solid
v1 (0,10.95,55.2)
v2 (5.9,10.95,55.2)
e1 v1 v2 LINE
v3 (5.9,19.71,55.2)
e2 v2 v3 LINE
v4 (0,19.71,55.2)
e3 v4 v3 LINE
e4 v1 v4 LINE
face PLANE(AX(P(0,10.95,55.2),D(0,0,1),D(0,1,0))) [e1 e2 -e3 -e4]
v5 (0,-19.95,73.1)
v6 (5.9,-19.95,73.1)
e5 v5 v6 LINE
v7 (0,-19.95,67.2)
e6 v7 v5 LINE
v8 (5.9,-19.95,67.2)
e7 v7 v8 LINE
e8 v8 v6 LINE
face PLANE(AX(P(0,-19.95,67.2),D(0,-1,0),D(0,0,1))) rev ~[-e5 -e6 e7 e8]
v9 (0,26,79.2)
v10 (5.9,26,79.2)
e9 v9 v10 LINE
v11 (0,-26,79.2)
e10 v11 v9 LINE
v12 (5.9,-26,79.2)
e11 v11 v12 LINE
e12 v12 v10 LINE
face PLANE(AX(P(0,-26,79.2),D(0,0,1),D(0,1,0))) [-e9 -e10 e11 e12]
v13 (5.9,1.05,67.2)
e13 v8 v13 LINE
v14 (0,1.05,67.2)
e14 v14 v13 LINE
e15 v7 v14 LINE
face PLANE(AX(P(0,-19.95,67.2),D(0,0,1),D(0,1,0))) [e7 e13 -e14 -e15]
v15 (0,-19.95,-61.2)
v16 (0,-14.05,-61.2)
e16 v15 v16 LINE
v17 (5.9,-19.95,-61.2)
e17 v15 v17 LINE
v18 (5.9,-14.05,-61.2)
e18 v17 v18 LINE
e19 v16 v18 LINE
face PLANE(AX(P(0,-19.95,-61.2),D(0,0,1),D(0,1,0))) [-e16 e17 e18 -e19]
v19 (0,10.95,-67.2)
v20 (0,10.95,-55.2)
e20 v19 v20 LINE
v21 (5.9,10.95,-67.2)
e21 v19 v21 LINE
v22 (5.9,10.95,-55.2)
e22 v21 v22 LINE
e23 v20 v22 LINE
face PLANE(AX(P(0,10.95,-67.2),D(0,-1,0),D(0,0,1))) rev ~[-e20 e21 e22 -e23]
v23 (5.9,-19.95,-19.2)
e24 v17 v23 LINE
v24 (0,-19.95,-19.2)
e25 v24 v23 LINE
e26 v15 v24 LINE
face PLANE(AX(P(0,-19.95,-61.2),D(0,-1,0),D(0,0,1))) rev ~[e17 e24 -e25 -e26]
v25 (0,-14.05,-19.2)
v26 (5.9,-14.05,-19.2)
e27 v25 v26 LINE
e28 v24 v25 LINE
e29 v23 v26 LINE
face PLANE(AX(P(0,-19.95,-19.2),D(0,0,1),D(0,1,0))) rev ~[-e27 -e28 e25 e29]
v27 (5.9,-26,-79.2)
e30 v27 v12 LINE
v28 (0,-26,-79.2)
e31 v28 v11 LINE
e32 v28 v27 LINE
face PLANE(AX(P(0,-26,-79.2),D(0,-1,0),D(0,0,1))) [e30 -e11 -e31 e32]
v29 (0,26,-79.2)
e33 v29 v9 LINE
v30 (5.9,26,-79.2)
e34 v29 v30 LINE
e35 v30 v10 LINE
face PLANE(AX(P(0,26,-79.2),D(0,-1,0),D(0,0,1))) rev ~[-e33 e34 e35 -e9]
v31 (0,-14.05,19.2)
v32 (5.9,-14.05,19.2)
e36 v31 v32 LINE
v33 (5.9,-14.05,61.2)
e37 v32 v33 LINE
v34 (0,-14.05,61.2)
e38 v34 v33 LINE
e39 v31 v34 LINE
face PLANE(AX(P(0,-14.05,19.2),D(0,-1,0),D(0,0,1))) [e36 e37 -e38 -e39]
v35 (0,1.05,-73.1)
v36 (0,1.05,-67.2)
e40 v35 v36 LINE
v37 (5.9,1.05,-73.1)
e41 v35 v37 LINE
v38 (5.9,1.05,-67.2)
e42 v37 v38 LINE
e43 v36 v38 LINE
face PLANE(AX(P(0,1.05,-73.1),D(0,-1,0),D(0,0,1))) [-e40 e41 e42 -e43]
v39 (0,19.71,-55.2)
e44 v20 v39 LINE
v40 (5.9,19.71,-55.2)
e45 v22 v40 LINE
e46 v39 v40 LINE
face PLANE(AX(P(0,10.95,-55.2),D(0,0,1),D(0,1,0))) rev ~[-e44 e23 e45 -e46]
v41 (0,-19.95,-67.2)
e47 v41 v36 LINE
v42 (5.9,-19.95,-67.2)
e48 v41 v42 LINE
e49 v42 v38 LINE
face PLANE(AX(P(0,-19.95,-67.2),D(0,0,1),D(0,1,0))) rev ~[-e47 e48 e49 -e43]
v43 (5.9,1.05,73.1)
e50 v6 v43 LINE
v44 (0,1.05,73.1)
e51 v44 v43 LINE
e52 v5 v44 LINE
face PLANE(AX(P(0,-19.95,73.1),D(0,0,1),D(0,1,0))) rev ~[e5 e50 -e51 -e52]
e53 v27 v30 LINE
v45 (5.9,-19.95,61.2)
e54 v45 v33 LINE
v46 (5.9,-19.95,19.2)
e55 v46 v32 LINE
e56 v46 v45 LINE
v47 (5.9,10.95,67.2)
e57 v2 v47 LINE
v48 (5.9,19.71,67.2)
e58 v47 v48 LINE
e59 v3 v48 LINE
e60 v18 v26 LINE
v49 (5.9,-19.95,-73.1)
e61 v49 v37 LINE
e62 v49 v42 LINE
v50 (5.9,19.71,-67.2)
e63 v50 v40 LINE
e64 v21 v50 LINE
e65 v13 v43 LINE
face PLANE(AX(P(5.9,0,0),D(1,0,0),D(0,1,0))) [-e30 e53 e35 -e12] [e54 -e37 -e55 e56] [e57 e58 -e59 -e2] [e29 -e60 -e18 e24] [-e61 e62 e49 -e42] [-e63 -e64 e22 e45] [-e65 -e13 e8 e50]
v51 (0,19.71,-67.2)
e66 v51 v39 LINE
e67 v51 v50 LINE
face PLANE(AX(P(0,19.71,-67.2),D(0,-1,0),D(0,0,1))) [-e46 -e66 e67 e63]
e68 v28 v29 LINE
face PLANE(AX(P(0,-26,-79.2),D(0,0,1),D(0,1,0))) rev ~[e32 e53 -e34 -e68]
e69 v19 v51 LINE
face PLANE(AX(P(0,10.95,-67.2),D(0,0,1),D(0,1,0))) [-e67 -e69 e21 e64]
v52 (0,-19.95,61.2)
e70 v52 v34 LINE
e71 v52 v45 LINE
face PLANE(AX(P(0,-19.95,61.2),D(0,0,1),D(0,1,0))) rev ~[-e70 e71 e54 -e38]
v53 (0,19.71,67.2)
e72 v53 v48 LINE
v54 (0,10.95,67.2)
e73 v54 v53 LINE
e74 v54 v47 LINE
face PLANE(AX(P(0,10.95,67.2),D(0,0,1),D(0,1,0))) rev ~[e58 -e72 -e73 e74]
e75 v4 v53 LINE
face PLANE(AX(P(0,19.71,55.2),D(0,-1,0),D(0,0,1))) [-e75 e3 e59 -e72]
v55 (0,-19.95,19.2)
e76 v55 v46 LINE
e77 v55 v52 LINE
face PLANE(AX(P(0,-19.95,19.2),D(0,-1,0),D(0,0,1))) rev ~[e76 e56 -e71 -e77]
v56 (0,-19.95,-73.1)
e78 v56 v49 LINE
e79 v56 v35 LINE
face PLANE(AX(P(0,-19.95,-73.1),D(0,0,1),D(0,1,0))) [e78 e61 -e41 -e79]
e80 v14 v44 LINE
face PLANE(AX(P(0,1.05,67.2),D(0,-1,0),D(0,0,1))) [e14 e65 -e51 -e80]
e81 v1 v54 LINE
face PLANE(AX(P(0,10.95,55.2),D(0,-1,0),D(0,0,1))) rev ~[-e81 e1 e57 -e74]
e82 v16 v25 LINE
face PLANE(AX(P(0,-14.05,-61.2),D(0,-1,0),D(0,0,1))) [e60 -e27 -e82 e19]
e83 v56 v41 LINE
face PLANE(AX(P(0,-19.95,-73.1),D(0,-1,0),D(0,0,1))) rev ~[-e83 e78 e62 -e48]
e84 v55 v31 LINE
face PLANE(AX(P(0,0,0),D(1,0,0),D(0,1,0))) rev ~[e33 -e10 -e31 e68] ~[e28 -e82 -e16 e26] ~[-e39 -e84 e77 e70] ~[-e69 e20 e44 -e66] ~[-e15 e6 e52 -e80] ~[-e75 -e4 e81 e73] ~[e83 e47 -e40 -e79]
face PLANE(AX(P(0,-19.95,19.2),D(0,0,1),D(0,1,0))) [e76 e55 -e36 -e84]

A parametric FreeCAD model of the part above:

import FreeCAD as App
import Part
import Sketcher
from FreeCAD import Vector
Q = App.Units.Quantity


def add_polygon(sketch, points):
    """Adds a closed chain of lines whose ends are joined by coincident constraints."""
    first, n = sketch.GeometryCount, len(points)
    for a, b in zip(points, points[1:] + points[:1]):
        sketch.addGeometry(Part.LineSegment(App.Vector(*a, 0), App.Vector(*b, 0)), False)
    for i in range(n):
        sketch.addConstraint(Sketcher.Constraint("Coincident", first + i, 2, first + (i + 1) % n, 1))

doc = App.newDocument("Part")
body = doc.addObject("PartDesign::Body", "Body")

# Sketch on YZ plane
sketch1 = doc.addObject("Sketcher::SketchObject", "Sketch")
body.addObject(sketch1)
sketch1.AttachmentSupport = (doc.YZ_Plane, [""])
sketch1.MapMode = "FlatFace"
add_polygon(sketch1, [(-26, 79), (-26, -79), (26, -79), (26, 79)])  # lines 0-3
add_polygon(sketch1, [(-14, -61), (-20, -61), (-20, -19), (-14, -19)])  # lines 4-7
add_polygon(sketch1, [(1, -73), (-20, -73), (-20, -67), (1, -67)])  # lines 8-11
add_polygon(sketch1, [(20, -67), (11, -67), (11, -55), (20, -55)])  # lines 12-15
add_polygon(sketch1, [(-14, 19), (-20, 19), (-20, 61), (-14, 61)])  # lines 16-19
add_polygon(sketch1, [(1, 67), (-20, 67), (-20, 73), (1, 73)])  # lines 20-23
add_polygon(sketch1, [(20, 55), (11, 55), (11, 67), (20, 67)])  # lines 24-27
sketch1.addConstraint([
    Sketcher.Constraint("Vertical", 0),
    Sketcher.Constraint("Horizontal", 1),
    Sketcher.Constraint("Vertical", 2),
    Sketcher.Constraint("Horizontal", 3),
    Sketcher.Constraint("Horizontal", 4),
    Sketcher.Constraint("Vertical", 5),
    Sketcher.Constraint("Horizontal", 6),
    Sketcher.Constraint("Vertical", 7),
    Sketcher.Constraint("Horizontal", 8),
    Sketcher.Constraint("Vertical", 9),
    Sketcher.Constraint("Horizontal", 10),
    Sketcher.Constraint("Vertical", 11),
    Sketcher.Constraint("Horizontal", 12),
    Sketcher.Constraint("Vertical", 13),
    Sketcher.Constraint("Horizontal", 14),
    Sketcher.Constraint("Vertical", 15),
    Sketcher.Constraint("Horizontal", 16),
    Sketcher.Constraint("Vertical", 17),
    Sketcher.Constraint("Horizontal", 18),
    Sketcher.Constraint("Vertical", 19),
    Sketcher.Constraint("Horizontal", 20),
    Sketcher.Constraint("Vertical", 21),
    Sketcher.Constraint("Horizontal", 22),
    Sketcher.Constraint("Vertical", 23),
    Sketcher.Constraint("Horizontal", 24),
    Sketcher.Constraint("Vertical", 25),
    Sketcher.Constraint("Horizontal", 26),
    Sketcher.Constraint("Vertical", 27),
    Sketcher.Constraint("Symmetric", 0, 2, 2, 2, -1, 1),
    Sketcher.Constraint("Symmetric", 5, 2, 16, 2, -1),
    Sketcher.Constraint("Symmetric", 7, 2, 18, 2, -1),
    Sketcher.Constraint("Symmetric", 9, 2, 20, 2, -1),
    Sketcher.Constraint("Symmetric", 11, 2, 22, 2, -1),
    Sketcher.Constraint("Symmetric", 13, 2, 24, 2, -1),
    Sketcher.Constraint("Symmetric", 15, 2, 26, 2, -1),
    Sketcher.Constraint("Horizontal", 10, 2, 12, 2),
    Sketcher.Constraint("Vertical", 5, 2, 8, 2),
    Sketcher.Constraint("Equal", 18, 9),
    Sketcher.Constraint("DistanceX", 1, 1, 1, 2, Q("52 mm")),
    Sketcher.Constraint("DistanceX", 8, 2, 8, 1, Q("21 mm")),
    Sketcher.Constraint("DistanceY", 5, 1, 5, 2, Q("42 mm")),
    Sketcher.Constraint("DistanceY", 13, 1, 13, 2, Q("12 mm")),
    Sketcher.Constraint("DistanceX", 4, 2, 4, 1, Q("5.9 mm")),
    Sketcher.Constraint("DistanceY", 0, 2, 0, 1, Q("158.4 mm")),
    Sketcher.Constraint("DistanceY", 0, 2, 4, 2, Q("18 mm")),
    Sketcher.Constraint("DistanceY", 9, 2, 4, 2, Q("6 mm")),
    Sketcher.Constraint("DistanceX", 7, 2, 12, 2, Q("25 mm")),
    Sketcher.Constraint("DistanceX", 12, 2, 12, 1, Q("8.76 mm")),
    Sketcher.Constraint("DistanceX", 4, 2, -1, 1, Q("19.95 mm")),
])
pad1 = doc.addObject("PartDesign::Pad", "Pad")
body.addObject(pad1)
pad1.Profile = sketch1
pad1.Length = 5.9

doc.recompute()
